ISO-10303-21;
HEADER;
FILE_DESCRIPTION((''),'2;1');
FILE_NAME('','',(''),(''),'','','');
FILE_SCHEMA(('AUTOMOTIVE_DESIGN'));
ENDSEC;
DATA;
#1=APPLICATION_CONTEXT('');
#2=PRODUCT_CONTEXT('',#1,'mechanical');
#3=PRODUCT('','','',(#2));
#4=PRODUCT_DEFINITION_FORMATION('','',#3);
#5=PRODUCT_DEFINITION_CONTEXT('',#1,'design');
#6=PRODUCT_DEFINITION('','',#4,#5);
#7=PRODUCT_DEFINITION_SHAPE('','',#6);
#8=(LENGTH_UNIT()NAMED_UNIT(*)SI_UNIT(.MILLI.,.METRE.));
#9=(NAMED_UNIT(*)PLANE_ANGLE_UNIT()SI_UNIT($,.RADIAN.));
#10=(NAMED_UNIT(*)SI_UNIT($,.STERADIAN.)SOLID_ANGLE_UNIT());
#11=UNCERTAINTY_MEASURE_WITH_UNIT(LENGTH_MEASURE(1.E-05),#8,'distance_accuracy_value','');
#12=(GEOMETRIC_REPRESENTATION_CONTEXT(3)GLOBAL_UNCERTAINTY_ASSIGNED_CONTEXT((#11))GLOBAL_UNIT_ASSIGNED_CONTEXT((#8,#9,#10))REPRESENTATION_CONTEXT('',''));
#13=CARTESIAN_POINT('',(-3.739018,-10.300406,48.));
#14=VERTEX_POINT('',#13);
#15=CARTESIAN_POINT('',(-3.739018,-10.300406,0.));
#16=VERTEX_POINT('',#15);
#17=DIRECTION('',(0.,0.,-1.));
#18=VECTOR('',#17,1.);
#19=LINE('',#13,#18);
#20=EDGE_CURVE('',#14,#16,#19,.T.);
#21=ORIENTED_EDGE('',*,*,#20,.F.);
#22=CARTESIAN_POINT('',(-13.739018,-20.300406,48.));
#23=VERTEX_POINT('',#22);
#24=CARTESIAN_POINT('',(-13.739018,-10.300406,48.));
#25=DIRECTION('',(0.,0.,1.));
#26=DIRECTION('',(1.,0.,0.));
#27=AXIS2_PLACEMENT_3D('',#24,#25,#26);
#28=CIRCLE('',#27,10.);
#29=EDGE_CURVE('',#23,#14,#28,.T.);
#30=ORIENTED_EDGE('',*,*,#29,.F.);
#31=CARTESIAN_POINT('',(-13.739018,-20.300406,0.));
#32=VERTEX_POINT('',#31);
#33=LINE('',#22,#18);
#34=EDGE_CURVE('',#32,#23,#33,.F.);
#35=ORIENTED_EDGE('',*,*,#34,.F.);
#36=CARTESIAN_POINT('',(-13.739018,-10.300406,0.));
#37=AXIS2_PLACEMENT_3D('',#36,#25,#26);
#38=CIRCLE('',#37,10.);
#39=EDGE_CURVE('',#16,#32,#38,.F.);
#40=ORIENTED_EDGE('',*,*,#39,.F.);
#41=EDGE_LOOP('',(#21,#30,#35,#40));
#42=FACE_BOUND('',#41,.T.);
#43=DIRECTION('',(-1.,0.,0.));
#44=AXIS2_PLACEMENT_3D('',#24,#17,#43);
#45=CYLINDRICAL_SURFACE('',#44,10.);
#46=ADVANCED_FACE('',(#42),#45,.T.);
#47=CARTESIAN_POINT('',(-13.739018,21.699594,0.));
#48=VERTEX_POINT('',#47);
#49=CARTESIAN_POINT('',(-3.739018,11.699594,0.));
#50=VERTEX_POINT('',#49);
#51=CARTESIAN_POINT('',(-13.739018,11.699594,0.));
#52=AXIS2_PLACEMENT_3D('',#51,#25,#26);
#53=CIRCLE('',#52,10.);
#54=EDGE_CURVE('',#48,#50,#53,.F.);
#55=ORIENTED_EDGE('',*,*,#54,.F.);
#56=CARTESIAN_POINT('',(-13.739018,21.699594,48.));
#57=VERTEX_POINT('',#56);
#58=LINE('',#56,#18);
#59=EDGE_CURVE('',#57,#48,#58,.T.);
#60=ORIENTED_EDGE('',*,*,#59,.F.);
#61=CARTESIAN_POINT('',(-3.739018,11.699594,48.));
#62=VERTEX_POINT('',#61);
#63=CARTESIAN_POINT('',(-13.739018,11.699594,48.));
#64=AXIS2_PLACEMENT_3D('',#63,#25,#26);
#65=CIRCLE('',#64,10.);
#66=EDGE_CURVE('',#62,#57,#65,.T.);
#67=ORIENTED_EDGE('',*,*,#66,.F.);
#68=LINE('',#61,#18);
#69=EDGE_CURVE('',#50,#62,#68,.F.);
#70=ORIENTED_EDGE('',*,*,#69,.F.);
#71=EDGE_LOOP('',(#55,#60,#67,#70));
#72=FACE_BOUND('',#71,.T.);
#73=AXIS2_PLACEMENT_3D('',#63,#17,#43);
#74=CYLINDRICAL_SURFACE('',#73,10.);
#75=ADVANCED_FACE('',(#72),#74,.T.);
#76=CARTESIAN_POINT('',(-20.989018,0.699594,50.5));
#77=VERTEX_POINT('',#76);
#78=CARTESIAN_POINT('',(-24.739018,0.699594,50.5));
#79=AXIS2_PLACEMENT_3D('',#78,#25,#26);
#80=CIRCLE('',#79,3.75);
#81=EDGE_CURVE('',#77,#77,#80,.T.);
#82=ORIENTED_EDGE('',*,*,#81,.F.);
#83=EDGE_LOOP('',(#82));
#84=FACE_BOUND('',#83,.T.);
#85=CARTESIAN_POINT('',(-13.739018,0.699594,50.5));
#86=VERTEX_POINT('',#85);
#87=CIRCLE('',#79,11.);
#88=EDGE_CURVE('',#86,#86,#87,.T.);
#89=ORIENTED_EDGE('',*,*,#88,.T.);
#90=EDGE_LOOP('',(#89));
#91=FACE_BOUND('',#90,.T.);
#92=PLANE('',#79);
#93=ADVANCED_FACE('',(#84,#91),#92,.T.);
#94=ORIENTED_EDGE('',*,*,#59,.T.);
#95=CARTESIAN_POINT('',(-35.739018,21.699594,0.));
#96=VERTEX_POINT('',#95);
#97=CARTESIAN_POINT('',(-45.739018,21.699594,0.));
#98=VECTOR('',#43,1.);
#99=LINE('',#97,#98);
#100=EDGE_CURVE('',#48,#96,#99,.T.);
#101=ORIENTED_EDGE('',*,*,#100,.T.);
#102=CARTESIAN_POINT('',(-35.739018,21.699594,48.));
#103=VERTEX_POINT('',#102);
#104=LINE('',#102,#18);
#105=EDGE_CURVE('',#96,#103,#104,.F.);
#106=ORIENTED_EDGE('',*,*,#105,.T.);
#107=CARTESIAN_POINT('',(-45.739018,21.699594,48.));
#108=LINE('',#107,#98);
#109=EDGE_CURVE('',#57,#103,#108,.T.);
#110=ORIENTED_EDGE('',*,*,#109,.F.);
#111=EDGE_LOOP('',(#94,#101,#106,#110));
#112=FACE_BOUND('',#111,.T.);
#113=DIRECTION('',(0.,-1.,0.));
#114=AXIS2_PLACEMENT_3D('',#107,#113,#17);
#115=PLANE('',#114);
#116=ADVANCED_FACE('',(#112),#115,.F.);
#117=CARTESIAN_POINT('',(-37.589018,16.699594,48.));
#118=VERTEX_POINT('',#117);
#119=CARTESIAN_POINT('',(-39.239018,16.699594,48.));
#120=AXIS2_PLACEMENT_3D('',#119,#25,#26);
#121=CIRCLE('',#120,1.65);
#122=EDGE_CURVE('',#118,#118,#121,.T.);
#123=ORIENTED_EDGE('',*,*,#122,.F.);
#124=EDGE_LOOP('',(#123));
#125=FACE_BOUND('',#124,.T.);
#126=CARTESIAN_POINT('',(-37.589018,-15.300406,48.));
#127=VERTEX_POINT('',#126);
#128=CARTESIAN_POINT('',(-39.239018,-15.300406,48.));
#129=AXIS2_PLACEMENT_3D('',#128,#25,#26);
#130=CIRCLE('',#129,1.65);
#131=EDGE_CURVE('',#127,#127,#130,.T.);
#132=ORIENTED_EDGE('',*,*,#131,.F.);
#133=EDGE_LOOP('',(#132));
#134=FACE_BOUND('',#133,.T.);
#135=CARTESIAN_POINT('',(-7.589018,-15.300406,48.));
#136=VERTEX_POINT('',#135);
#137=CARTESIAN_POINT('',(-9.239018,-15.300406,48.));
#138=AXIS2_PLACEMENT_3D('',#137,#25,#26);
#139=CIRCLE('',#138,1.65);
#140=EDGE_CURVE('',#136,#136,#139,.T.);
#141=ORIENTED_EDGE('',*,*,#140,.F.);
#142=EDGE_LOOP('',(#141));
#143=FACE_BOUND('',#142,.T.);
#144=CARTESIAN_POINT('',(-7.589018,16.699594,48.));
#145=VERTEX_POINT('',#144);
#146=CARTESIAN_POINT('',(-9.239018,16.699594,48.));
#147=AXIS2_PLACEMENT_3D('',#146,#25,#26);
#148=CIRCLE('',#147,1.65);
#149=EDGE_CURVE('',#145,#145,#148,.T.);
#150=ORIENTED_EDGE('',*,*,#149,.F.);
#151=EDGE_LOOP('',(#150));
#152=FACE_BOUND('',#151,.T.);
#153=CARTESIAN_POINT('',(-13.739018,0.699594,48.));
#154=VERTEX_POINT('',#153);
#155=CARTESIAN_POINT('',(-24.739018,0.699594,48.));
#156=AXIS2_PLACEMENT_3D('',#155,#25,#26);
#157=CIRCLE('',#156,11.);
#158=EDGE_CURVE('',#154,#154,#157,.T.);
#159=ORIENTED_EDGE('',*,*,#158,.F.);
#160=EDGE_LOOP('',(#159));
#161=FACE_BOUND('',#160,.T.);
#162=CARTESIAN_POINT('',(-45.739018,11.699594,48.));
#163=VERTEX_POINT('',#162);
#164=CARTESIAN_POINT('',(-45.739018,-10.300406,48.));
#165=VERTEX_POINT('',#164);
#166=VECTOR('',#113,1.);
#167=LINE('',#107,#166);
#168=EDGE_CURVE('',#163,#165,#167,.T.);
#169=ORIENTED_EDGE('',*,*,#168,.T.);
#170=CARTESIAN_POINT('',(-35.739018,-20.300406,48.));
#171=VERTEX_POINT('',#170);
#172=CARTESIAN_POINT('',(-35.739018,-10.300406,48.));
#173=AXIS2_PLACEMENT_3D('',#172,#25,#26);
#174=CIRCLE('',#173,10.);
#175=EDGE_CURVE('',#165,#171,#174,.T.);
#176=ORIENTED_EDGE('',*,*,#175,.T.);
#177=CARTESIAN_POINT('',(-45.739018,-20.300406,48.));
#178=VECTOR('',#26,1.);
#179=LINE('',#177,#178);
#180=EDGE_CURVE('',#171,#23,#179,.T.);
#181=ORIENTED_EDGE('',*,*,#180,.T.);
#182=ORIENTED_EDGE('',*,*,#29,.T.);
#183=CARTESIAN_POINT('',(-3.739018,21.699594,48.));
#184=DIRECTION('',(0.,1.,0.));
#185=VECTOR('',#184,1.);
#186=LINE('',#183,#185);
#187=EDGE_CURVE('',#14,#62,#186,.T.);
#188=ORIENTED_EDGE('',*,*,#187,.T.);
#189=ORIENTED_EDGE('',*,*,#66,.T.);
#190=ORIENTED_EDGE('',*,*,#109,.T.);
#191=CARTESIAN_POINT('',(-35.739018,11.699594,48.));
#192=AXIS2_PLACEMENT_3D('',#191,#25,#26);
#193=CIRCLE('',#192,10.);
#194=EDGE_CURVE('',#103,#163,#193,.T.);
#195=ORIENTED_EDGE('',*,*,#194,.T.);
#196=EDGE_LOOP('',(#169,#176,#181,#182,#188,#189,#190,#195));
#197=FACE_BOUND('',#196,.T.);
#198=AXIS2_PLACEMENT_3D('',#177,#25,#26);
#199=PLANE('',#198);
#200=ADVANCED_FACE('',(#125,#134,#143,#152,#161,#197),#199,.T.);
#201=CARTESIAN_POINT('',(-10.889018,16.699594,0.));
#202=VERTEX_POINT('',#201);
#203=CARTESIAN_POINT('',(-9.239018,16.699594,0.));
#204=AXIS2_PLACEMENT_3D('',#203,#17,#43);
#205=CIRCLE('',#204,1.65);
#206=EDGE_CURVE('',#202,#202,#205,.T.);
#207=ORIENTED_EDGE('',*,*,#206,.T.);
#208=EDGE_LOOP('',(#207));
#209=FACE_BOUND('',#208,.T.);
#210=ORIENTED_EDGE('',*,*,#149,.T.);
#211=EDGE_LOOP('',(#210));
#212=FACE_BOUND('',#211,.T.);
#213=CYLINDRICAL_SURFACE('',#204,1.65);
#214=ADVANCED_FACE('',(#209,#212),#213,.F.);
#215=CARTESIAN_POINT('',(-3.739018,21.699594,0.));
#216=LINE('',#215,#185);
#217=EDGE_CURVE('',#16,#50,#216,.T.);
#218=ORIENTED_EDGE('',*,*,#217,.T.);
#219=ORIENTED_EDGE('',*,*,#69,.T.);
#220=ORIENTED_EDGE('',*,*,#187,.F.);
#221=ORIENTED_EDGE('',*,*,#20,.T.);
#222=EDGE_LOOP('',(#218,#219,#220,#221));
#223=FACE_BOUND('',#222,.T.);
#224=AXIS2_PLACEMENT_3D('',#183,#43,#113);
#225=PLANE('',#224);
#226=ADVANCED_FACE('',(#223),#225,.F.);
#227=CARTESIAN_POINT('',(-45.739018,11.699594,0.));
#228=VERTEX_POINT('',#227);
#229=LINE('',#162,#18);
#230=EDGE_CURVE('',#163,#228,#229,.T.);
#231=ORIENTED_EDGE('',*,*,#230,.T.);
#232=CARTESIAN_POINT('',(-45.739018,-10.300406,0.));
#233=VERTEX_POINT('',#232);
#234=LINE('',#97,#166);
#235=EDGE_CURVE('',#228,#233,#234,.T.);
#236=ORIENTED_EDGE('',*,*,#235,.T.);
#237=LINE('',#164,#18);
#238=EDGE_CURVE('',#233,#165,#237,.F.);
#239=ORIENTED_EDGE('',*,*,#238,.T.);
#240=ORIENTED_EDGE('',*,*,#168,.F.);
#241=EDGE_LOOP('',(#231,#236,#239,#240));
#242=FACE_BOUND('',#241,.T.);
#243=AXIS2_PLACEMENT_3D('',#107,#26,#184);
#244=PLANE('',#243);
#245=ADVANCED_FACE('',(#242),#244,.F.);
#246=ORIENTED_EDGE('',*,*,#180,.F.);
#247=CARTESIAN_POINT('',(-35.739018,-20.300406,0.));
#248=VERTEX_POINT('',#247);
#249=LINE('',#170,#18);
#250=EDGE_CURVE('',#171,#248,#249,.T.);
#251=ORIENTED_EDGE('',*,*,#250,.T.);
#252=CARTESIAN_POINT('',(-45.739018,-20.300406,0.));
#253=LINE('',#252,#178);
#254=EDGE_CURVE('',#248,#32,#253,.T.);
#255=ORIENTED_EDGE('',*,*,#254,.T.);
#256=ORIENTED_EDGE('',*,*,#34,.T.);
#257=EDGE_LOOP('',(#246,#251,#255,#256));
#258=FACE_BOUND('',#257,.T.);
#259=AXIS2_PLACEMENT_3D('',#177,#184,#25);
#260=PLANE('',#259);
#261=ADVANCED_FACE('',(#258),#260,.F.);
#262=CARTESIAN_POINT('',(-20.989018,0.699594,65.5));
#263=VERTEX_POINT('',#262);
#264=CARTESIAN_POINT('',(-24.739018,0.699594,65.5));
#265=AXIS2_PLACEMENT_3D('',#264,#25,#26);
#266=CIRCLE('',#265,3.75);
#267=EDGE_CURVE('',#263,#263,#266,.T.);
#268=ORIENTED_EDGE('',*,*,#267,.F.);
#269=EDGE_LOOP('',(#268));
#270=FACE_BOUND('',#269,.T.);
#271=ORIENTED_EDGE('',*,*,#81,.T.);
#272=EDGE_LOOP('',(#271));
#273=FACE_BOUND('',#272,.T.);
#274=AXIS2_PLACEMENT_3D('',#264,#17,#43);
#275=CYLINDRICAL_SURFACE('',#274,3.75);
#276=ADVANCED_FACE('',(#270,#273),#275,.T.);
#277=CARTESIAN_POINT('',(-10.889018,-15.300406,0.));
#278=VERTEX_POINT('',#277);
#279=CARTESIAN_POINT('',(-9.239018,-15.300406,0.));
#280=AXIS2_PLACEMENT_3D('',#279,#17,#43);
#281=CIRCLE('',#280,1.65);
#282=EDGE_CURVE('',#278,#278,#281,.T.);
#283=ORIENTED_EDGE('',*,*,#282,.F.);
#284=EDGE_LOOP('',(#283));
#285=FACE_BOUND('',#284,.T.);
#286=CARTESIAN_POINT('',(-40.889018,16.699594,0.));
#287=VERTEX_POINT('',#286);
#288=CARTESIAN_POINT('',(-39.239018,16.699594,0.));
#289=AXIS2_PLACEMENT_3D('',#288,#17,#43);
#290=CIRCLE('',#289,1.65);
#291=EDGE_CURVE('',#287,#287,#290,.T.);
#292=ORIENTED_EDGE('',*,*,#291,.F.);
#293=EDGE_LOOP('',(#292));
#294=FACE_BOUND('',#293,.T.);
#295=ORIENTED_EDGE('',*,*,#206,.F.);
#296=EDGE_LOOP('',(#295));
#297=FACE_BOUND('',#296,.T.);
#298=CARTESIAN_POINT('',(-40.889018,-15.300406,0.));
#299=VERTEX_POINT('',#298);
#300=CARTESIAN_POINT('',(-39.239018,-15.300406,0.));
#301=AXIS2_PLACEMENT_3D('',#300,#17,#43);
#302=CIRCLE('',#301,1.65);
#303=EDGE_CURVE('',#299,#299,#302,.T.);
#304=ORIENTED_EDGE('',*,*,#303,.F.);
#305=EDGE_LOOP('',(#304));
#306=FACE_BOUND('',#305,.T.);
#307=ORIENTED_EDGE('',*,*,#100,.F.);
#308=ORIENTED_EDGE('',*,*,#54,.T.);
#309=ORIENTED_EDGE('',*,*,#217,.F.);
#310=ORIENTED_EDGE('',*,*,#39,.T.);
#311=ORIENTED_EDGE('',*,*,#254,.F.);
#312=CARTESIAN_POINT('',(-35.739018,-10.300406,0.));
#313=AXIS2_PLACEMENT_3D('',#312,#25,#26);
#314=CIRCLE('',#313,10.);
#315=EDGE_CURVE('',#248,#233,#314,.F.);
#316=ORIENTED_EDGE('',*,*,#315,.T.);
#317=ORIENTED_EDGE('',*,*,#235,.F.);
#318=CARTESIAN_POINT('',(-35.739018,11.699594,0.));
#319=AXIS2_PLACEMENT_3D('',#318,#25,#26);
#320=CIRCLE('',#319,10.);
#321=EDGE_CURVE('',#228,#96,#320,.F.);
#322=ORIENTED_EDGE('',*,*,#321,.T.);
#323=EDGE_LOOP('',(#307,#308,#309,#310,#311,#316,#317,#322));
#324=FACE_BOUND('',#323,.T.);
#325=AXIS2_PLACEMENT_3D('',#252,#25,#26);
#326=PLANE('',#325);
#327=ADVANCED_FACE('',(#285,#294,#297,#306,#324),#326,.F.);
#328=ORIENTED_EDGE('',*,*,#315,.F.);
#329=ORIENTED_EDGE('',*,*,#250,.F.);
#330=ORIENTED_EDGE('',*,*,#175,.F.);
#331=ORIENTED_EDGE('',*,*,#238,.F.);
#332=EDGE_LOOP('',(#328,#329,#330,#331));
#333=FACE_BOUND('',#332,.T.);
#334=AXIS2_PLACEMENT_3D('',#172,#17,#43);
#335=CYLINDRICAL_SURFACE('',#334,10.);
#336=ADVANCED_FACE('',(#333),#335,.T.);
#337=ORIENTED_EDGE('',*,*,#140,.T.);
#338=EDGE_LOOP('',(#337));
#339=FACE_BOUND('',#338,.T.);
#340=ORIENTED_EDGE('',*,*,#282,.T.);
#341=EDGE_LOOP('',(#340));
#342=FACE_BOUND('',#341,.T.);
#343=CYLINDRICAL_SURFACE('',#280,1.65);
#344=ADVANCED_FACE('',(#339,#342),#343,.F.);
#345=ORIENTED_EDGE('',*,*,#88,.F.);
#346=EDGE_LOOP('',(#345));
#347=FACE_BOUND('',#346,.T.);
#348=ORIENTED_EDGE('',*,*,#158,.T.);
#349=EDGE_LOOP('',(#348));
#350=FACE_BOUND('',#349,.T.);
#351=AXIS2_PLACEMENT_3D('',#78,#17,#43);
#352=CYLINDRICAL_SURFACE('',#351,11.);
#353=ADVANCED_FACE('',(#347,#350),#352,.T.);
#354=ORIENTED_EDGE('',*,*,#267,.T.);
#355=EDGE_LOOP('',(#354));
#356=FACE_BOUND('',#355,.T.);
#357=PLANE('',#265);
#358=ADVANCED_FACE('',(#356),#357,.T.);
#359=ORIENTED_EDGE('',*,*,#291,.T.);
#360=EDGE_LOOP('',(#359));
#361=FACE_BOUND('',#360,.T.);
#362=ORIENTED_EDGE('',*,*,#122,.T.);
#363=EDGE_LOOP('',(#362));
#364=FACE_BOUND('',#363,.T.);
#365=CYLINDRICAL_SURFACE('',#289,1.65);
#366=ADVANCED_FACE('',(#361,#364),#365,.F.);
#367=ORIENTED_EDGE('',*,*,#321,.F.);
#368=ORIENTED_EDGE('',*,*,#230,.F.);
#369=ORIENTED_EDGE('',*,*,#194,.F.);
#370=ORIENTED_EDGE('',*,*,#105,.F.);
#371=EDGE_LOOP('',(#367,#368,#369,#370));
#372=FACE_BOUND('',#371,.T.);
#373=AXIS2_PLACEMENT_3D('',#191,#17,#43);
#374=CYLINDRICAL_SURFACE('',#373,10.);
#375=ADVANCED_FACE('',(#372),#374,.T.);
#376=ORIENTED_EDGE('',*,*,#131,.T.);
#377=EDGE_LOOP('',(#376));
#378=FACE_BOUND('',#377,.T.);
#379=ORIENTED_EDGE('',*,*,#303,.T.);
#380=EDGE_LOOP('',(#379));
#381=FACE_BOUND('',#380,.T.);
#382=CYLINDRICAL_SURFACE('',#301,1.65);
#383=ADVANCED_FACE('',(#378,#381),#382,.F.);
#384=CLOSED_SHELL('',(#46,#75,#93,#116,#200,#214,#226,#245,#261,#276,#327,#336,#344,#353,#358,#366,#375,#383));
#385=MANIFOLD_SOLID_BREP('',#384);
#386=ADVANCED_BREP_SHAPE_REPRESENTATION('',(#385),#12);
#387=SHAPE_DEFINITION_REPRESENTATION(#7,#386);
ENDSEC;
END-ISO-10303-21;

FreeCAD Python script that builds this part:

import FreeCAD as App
import Part
import Sketcher
from FreeCAD import Vector
Q = App.Units.Quantity


def edges_at(feature, points):
    """Names of the edges that pass closest to the given points."""
    edges = feature.Shape.Edges
    near = lambda p: min(range(len(edges)), key=lambda i: edges[i].distToShape(Part.Vertex(*p))[0])
    return sorted({f"Edge{near(p) + 1}" for p in points})


def add_polygon(sketch, points):
    """Adds a closed chain of lines whose ends are joined by coincident constraints."""
    first, n = sketch.GeometryCount, len(points)
    for a, b in zip(points, points[1:] + points[:1]):
        sketch.addGeometry(Part.LineSegment(App.Vector(*a, 0), App.Vector(*b, 0)), False)
    for i in range(n):
        sketch.addConstraint(Sketcher.Constraint("Coincident", first + i, 2, first + (i + 1) % n, 1))

doc = App.newDocument("Part")
body = doc.addObject("PartDesign::Body", "Body")

sketch1 = doc.addObject("Sketcher::SketchObject", "Sketch")
body.addObject(sketch1)
sketch1.AttachmentSupport = (doc.XY_Plane, [""])
sketch1.MapMode = "FlatFace"
add_polygon(sketch1, [(-46, 22), (-46, -20), (-4, -20), (-4, 22)])
sketch1.addConstraint(Sketcher.Constraint("Vertical", 0))
sketch1.addConstraint(Sketcher.Constraint("Horizontal", 1))
sketch1.addConstraint(Sketcher.Constraint("Vertical", 2))
sketch1.addConstraint(Sketcher.Constraint("Horizontal", 3))
sketch1.addConstraint(Sketcher.Constraint("Equal", 3, 0))
sketch1.addConstraint(Sketcher.Constraint("DistanceX", 1, 1, 1, 2, Q("42 mm")))
sketch1.addConstraint(Sketcher.Constraint("DistanceX", 0, 2, -1, 1, Q("45.739018 mm")))
sketch1.addConstraint(Sketcher.Constraint("DistanceY", 0, 2, -1, 1, Q("20.300406 mm")))
pad1 = doc.addObject("PartDesign::Pad", "Pad")
body.addObject(pad1)
pad1.Profile = sketch1
pad1.Length = 48
doc.recompute()

fillet = doc.addObject("PartDesign::Fillet", "Fillet")
body.addObject(fillet)
fillet.Base = (pad1, edges_at(pad1, [
    (-45.739, 21.7, 24),
    (-3.739, 21.7, 24),
    (-3.739, -20.3, 24),
    (-45.739, -20.3, 24),
]))
fillet.Radius = 10

sketch2 = doc.addObject("Sketcher::SketchObject", "Sketch001")
body.addObject(sketch2)
sketch2.AttachmentSupport = (doc.XY_Plane, [""])
sketch2.MapMode = "FlatFace"
sketch2.AttachmentOffset = App.Placement(Vector(0, 0, 48), App.Rotation())
sketch2.addGeometry(Part.Circle(Vector(-25, 1, 0), Vector(0, 0, 1), 11), False)
sketch2.addConstraint(Sketcher.Constraint("Diameter", 0, Q("22 mm")))
sketch2.addConstraint(Sketcher.Constraint("DistanceX", 0, 3, -1, 1, Q("24.739018 mm")))
sketch2.addConstraint(Sketcher.Constraint("DistanceY", -1, 1, 0, 3, Q("0.699594 mm")))
pad2 = doc.addObject("PartDesign::Pad", "Pad001")
body.addObject(pad2)
pad2.Profile = sketch2
pad2.Length = 2.5

sketch3 = doc.addObject("Sketcher::SketchObject", "Sketch002")
body.addObject(sketch3)
sketch3.AttachmentSupport = (doc.XY_Plane, [""])
sketch3.MapMode = "FlatFace"
sketch3.AttachmentOffset = App.Placement(Vector(0, 0, 50.5), App.Rotation())
sketch3.addGeometry(Part.Circle(Vector(-24.7, 0.7, 0), Vector(0, 0, 1), 3.8), False)
sketch3.addConstraint(Sketcher.Constraint("Diameter", 0, Q("7.5 mm")))
sketch3.addConstraint(Sketcher.Constraint("DistanceX", 0, 3, -1, 1, Q("24.739018 mm")))
sketch3.addConstraint(Sketcher.Constraint("DistanceY", -1, 1, 0, 3, Q("0.699594 mm")))
pad3 = doc.addObject("PartDesign::Pad", "Pad002")
body.addObject(pad3)
pad3.Profile = sketch3
pad3.Length = 15

sketch4 = doc.addObject("Sketcher::SketchObject", "Sketch003")
body.addObject(sketch4)
sketch4.AttachmentSupport = (doc.XY_Plane, [""])
sketch4.MapMode = "FlatFace"
sketch4.addGeometry(Part.Circle(Vector(-9.2, 16.7, 0), Vector(0, 0, 1), 1.6), False)
sketch4.addGeometry(Part.Circle(Vector(-9.2, -15.3, 0), Vector(0, 0, 1), 1.6), False)
sketch4.addGeometry(Part.Circle(Vector(-39.2, -15.3, 0), Vector(0, 0, 1), 1.6), False)
sketch4.addGeometry(Part.Circle(Vector(-39.2, 16.7, 0), Vector(0, 0, 1), 1.6), False)
sketch4.addConstraint(Sketcher.Constraint("Equal", 0, 1))
sketch4.addConstraint(Sketcher.Constraint("Equal", 1, 2))
sketch4.addConstraint(Sketcher.Constraint("Equal", 2, 3))
sketch4.addConstraint(Sketcher.Constraint("Horizontal", 1, 3, 2, 3))
sketch4.addConstraint(Sketcher.Constraint("Horizontal", 0, 3, 3, 3))
sketch4.addConstraint(Sketcher.Constraint("Vertical", 0, 3, 1, 3))
sketch4.addConstraint(Sketcher.Constraint("Vertical", 2, 3, 3, 3))
sketch4.addConstraint(Sketcher.Constraint("Diameter", 0, Q("3.3 mm")))
sketch4.addConstraint(Sketcher.Constraint("DistanceY", 1, 3, 0, 3, Q("32 mm")))
sketch4.addConstraint(Sketcher.Constraint("DistanceX", 2, 3, 1, 3, Q("30 mm")))
sketch4.addConstraint(Sketcher.Constraint("DistanceX", 0, 3, -1, 1, Q("9.239018 mm")))
sketch4.addConstraint(Sketcher.Constraint("DistanceY", -1, 1, 0, 3, Q("16.699594 mm")))
doc.recompute()
hole = doc.addObject("PartDesign::Hole", "Hole")
body.addObject(hole)
hole.Profile = sketch4
hole.ThreadType = "None"
hole.Diameter = 3.3
hole.DepthType = "ThroughAll"
hole.Reversed = True

doc.recompute()
